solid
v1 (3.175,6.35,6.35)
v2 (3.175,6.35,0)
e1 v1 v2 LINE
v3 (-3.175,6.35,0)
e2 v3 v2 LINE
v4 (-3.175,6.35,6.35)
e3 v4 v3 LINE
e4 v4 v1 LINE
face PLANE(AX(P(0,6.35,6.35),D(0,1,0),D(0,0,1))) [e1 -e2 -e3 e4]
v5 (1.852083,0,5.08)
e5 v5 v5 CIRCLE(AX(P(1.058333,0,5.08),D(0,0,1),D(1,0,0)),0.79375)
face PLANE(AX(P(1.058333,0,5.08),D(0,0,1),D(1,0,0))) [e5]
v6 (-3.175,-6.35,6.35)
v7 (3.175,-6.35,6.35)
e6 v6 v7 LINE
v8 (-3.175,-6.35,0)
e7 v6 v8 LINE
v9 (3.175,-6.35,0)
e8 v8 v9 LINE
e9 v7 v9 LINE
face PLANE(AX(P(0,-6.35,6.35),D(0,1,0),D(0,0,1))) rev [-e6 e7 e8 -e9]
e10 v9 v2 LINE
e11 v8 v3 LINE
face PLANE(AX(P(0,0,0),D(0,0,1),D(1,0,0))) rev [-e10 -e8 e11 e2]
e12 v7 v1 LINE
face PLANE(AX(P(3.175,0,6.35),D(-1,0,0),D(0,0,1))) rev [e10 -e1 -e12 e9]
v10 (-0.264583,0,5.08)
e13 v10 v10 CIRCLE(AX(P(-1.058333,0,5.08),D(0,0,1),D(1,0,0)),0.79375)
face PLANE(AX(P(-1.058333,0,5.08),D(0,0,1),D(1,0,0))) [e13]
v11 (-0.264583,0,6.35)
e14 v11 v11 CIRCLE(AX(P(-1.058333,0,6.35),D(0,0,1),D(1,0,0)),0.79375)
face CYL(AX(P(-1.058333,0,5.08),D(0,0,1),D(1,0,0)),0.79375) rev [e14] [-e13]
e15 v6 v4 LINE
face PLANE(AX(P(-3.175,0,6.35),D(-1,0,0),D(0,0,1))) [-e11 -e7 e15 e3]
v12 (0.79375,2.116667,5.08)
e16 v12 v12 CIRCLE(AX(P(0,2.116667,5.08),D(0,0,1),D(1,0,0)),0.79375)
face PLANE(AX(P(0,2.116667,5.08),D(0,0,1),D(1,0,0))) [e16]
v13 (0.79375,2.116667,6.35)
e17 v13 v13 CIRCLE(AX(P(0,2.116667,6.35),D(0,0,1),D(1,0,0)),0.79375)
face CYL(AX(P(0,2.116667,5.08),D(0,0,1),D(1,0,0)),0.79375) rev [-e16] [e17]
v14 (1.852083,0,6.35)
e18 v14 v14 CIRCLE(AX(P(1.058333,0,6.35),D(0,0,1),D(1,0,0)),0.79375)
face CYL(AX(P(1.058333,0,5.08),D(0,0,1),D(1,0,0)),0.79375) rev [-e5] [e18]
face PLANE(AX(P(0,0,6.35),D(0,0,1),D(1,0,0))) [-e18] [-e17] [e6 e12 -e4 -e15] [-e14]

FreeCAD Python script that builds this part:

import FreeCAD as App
import Part
import Sketcher
from FreeCAD import Vector
Q = App.Units.Quantity


def add_polygon(sketch, points):
    """Adds a closed chain of lines whose ends are joined by coincident constraints."""
    first, n = sketch.GeometryCount, len(points)
    for a, b in zip(points, points[1:] + points[:1]):
        sketch.addGeometry(Part.LineSegment(App.Vector(*a, 0), App.Vector(*b, 0)), False)
    for i in range(n):
        sketch.addConstraint(Sketcher.Constraint("Coincident", first + i, 2, first + (i + 1) % n, 1))

doc = App.newDocument("Part")
body = doc.addObject("PartDesign::Body", "Body")

# Sketch on XY plane
sketch1 = body.newObject("Sketcher::SketchObject", "Sketch")
sketch1.AttachmentSupport = (doc.getObject("XY_Plane"), [""])
sketch1.MapMode = "FlatFace"
add_polygon(sketch1, [(-3, 6), (-3, -6), (3, -6), (3, 6)])  # lines 0-3
sketch1.addConstraint(Sketcher.Constraint("Vertical", 0))
sketch1.addConstraint(Sketcher.Constraint("Horizontal", 1))
sketch1.addConstraint(Sketcher.Constraint("Vertical", 2))
sketch1.addConstraint(Sketcher.Constraint("Horizontal", 3))
sketch1.addConstraint(Sketcher.Constraint("Symmetric", 0, 2, 2, 2, -1, 1))
sketch1.addConstraint(Sketcher.Constraint("DistanceY", 0, 2, 0, 1, Q("0.5 in")))
sketch1.addConstraint(Sketcher.Constraint("DistanceX", 1, 1, 1, 2, Q("0.25 in")))
pad1 = body.newObject("PartDesign::Pad", "Pad")
pad1.Profile = sketch1
pad1.Length = Q("0.25 in")

# Sketch on XY plane
sketch2 = body.newObject("Sketcher::SketchObject", "Sketch001")
sketch2.AttachmentSupport = (doc.getObject("XY_Plane"), [""])
sketch2.MapMode = "FlatFace"
sketch2.AttachmentOffset = App.Placement(Vector(0, 0, 0.25 * 25.4), App.Rotation())
sketch2.addGeometry(Part.Circle(Vector(-1.1, 0, 0), Vector(0, 0, 1), 0.8), False)
sketch2.addGeometry(Part.Circle(Vector(0, 2.1, 0), Vector(0, 0, 1), 0.8), False)
sketch2.addGeometry(Part.Circle(Vector(1.1, 0, 0), Vector(0, 0, 1), 0.8), False)
sketch2.addConstraint(Sketcher.Constraint("Equal", 0, 1))
sketch2.addConstraint(Sketcher.Constraint("Equal", 1, 2))
sketch2.addConstraint(Sketcher.Constraint("Symmetric", 0, 3, 2, 3, -1, 1))
sketch2.addConstraint(Sketcher.Constraint("PointOnObject", 0, 3, -1))
sketch2.addConstraint(Sketcher.Constraint("PointOnObject", 1, 3, -2))
sketch2.addConstraint(Sketcher.Constraint("Diameter", 0, Q("0.0625 in")))
sketch2.addConstraint(Sketcher.Constraint("DistanceX", 0, 3, -1, 1, Q("1.058333 mm")))
sketch2.addConstraint(Sketcher.Constraint("DistanceY", -1, 1, 1, 3, Q("2.116667 mm")))
pocket1 = body.newObject("PartDesign::Pocket", "Pocket")
pocket1.Profile = sketch2
pocket1.Length = Q("0.05 in")

doc.recompute()
